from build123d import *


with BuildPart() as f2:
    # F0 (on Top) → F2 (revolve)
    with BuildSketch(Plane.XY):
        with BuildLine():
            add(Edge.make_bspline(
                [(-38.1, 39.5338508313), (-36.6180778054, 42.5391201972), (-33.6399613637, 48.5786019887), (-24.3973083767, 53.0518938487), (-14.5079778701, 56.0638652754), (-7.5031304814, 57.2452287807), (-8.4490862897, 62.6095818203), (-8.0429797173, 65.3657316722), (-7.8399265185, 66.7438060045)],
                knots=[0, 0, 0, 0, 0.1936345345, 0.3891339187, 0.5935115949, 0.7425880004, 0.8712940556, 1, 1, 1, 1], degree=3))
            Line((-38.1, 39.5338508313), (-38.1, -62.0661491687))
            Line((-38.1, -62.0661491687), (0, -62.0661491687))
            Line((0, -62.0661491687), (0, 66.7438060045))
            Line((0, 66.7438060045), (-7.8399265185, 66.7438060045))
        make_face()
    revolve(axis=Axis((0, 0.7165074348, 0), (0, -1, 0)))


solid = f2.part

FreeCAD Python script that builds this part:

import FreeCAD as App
import Part
import Sketcher

V = App.Vector
Q = App.Units.Quantity

doc = App.newDocument("Part")
body = doc.addObject("PartDesign::Body", "Body")

sketch1 = body.newObject("Sketcher::SketchObject", "Sketch")
sketch1.AttachmentSupport = (doc.getObject("XY_Plane"), [""])
sketch1.MapMode = "FlatFace"
sketch1.addGeometry([
    Part.BSplineCurve([V(-38.1, 39.533851, 0), V(-36.618078, 42.53912, 0), V(-33.639961, 48.578602, 0), V(-24.397308, 53.051894, 0), V(-14.507978, 56.063865, 0), V(-7.50313, 57.245229, 0), V(-8.449086, 62.609582, 0), V(-8.04298, 65.365732, 0), V(-7.839927, 66.743806, 0)], [4, 1, 1, 1, 1, 1, 4], [0, 0.193634535, 0.389133919, 0.593511595, 0.742588, 0.871294056, 1], False, 3, [1, 1, 1, 1, 1, 1, 1, 1, 1], False),
    Part.LineSegment(V(-38.1, 39.533851, 0), V(-38.1, -62.066149, 0)),
    Part.LineSegment(V(-38.1, -62.066149, 0), V(0, -62.066149, 0)),
    Part.LineSegment(V(0, -62.066149, 0), V(0, 66.743806, 0)),
    Part.LineSegment(V(0, 66.743806, 0), V(-7.839927, 66.743806, 0)),
], False)
sketch1.addConstraint([
    Sketcher.Constraint("Block", 0),
    Sketcher.Constraint("Coincident", 0, 1, 1, 1),
    Sketcher.Constraint("Coincident", 1, 2, 2, 1),
    Sketcher.Constraint("Coincident", 2, 2, 3, 1),
    Sketcher.Constraint("Coincident", 3, 2, 4, 1),
    Sketcher.Constraint("Coincident", 4, 2, 0, 2),
    Sketcher.Constraint("Vertical", 1),
    Sketcher.Constraint("Horizontal", 2),
    Sketcher.Constraint("Vertical", 3),
    Sketcher.Constraint("Horizontal", 4),
    Sketcher.Constraint("PointOnObject", 2, 2, -2),
    Sketcher.Constraint("DistanceY", 1, 2, 1, 1, Q("4 in")),
])
revolution = body.newObject("PartDesign::Revolution", "Revolution")
revolution.Profile = sketch1
revolution.ReferenceAxis = (sketch1, ["V_Axis"])
revolution.Angle = 360

doc.recompute()
